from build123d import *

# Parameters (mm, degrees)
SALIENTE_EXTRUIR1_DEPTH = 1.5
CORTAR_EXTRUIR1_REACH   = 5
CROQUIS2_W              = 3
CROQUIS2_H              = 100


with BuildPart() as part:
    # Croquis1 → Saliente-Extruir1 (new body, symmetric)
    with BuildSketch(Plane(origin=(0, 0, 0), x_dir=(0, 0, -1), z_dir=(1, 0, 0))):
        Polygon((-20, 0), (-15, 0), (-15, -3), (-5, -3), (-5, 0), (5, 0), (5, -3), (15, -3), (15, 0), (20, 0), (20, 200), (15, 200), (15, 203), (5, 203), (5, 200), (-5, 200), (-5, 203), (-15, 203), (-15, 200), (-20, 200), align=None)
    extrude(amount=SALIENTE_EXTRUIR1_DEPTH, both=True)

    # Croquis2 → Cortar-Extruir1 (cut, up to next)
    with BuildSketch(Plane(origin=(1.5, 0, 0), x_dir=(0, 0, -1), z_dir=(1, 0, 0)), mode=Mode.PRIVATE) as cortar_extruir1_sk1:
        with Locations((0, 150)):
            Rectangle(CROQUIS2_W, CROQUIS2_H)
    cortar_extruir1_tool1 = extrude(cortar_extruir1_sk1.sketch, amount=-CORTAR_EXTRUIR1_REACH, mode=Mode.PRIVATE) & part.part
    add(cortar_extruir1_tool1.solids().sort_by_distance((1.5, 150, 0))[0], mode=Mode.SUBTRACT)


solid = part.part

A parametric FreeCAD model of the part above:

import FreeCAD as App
import Part
import Sketcher

V = App.Vector
Q = App.Units.Quantity


def add_polygon(sketch, points):
    """Adds a closed chain of lines whose ends are joined by coincident constraints."""
    first, n = sketch.GeometryCount, len(points)
    for a, b in zip(points, points[1:] + points[:1]):
        sketch.addGeometry(Part.LineSegment(App.Vector(*a, 0), App.Vector(*b, 0)), False)
    for i in range(n):
        sketch.addConstraint(Sketcher.Constraint("Coincident", first + i, 2, first + (i + 1) % n, 1))

doc = App.newDocument("Part")
body = doc.addObject("PartDesign::Body", "Body")

# Sketch on YZ plane
sketch1 = body.newObject("Sketcher::SketchObject", "Sketch")
sketch1.AttachmentSupport = (doc.getObject("YZ_Plane"), [""])
sketch1.MapMode = "FlatFace"
add_polygon(sketch1, [(0, 20), (0, 15), (-3, 15), (-3, 5), (0, 5), (0, -5), (-3, -5), (-3, -15), (0, -15), (0, -20), (200, -20), (200, -15), (203, -15), (203, -5), (200, -5), (200, 5), (203, 5), (203, 15), (200, 15), (200, 20)])  # lines 0-19
sketch1.addConstraint([
    Sketcher.Constraint("Vertical", 0),
    Sketcher.Constraint("Horizontal", 1),
    Sketcher.Constraint("Vertical", 2),
    Sketcher.Constraint("Horizontal", 3),
    Sketcher.Constraint("Vertical", 4),
    Sketcher.Constraint("Horizontal", 5),
    Sketcher.Constraint("Vertical", 6),
    Sketcher.Constraint("Horizontal", 7),
    Sketcher.Constraint("Vertical", 8),
    Sketcher.Constraint("Horizontal", 9),
    Sketcher.Constraint("Vertical", 10),
    Sketcher.Constraint("Horizontal", 11),
    Sketcher.Constraint("Vertical", 12),
    Sketcher.Constraint("Horizontal", 13),
    Sketcher.Constraint("Vertical", 14),
    Sketcher.Constraint("Horizontal", 15),
    Sketcher.Constraint("Vertical", 16),
    Sketcher.Constraint("Horizontal", 17),
    Sketcher.Constraint("Vertical", 18),
    Sketcher.Constraint("Horizontal", 19),
    Sketcher.Constraint("Symmetric", 3, 2, 4, 2, -1, 1),
    Sketcher.Constraint("Symmetric", 0, 2, 7, 2, -1, 1),
    Sketcher.Constraint("Symmetric", 12, 2, 15, 2, -1),
    Sketcher.Constraint("Symmetric", 10, 2, 17, 2, -1),
    Sketcher.Constraint("Symmetric", 8, 2, 19, 2, -1),
    Sketcher.Constraint("Horizontal", 7, 2, 10, 2),
    Sketcher.Constraint("Horizontal", 5, 2, 12, 2),
    Sketcher.Constraint("Vertical", 2, 2, 5, 2),
    Sketcher.Constraint("Vertical", 10, 2, 13, 2),
    Sketcher.Constraint("Equal", 7, 11),
    Sketcher.Constraint("Equal", 2, 4),
    Sketcher.Constraint("DistanceX", 1, 2, 1, 1, Q("3 mm")),
    Sketcher.Constraint("DistanceX", 9, 1, 9, 2, Q("200 mm")),
    Sketcher.Constraint("DistanceY", 0, 2, 0, 1, Q("5 mm")),
    Sketcher.Constraint("DistanceY", 2, 2, 2, 1, Q("10 mm")),
])
pad1 = body.newObject("PartDesign::Pad", "Pad")
pad1.Profile = sketch1
pad1.Length = 3
pad1.Midplane = True

# Sketch on YZ plane
sketch2 = body.newObject("Sketcher::SketchObject", "Sketch001")
sketch2.AttachmentSupport = (doc.getObject("YZ_Plane"), [""])
sketch2.MapMode = "FlatFace"
sketch2.AttachmentOffset = App.Placement(V(0, 0, 1.5), App.Rotation())
add_polygon(sketch2, [(200, 1.5), (100, 1.5), (100, -1.5), (200, -1.5)])  # lines 0-3
sketch2.addConstraint([
    Sketcher.Constraint("Horizontal", 0),
    Sketcher.Constraint("Vertical", 1),
    Sketcher.Constraint("Horizontal", 2),
    Sketcher.Constraint("Vertical", 3),
    Sketcher.Constraint("DistanceX", 0, 2, 0, 1, Q("100 mm")),
    Sketcher.Constraint("DistanceY", 1, 2, 1, 1, Q("3 mm")),
    Sketcher.Constraint("DistanceX", -1, 1, 0, 2, Q("100 mm")),
    Sketcher.Constraint("DistanceY", -1, 1, 0, 2, Q("1.5 mm")),
])
pocket1 = body.newObject("PartDesign::Pocket", "Pocket")
pocket1.Profile = sketch2
pocket1.Type = "UpToFirst"

doc.recompute()
